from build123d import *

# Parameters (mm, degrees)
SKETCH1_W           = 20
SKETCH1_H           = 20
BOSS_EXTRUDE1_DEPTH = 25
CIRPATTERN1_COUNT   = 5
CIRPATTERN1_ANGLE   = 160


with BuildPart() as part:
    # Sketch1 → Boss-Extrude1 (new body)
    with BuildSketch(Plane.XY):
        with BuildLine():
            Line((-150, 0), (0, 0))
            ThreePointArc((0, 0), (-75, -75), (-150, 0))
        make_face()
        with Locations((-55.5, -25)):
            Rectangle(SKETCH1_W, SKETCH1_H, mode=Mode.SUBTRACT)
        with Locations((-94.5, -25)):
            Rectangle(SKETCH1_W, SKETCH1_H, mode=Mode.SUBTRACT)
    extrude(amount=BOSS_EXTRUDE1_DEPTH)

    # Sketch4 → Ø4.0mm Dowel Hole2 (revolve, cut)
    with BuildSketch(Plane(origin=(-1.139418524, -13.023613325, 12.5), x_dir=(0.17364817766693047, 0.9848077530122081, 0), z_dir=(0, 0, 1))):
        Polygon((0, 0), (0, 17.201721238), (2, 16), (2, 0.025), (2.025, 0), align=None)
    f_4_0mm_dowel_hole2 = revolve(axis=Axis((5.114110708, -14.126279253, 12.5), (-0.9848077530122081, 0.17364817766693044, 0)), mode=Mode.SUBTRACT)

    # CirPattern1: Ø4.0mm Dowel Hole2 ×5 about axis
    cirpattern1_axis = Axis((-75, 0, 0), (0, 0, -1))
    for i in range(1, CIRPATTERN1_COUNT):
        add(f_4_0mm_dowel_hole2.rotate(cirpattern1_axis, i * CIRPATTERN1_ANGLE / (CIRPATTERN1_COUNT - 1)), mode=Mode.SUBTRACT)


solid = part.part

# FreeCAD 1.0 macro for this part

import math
import FreeCAD as App
import Part
import Sketcher
from FreeCAD import Vector
Q = App.Units.Quantity


def add_polygon(sketch, points):
    """Adds a closed chain of lines whose ends are joined by coincident constraints."""
    first, n = sketch.GeometryCount, len(points)
    for a, b in zip(points, points[1:] + points[:1]):
        sketch.addGeometry(Part.LineSegment(App.Vector(*a, 0), App.Vector(*b, 0)), False)
    for i in range(n):
        sketch.addConstraint(Sketcher.Constraint("Coincident", first + i, 2, first + (i + 1) % n, 1))

doc = App.newDocument("Part")
params = doc.addObject("Spreadsheet::Sheet", "Params")
for row, (alias, value) in enumerate([
    ("sketch1_radius", "75 mm"),
    ("sketch1_width", "20 mm"),
    ("pad1_length", "25 mm"),
    ("groove_angle", "360 deg"),
], start=1):
    params.set(f"A{row}", alias)
    params.set(f"B{row}", "=" + value)
    params.setAlias(f"B{row}", alias)

body = doc.addObject("PartDesign::Body", "Body")

# Sketch on XY plane
sketch1 = body.newObject("Sketcher::SketchObject", "Sketch")
sketch1.AttachmentSupport = (doc.getObject("XY_Plane"), [""])
sketch1.MapMode = "FlatFace"
sketch1.addGeometry(Part.LineSegment(Vector(0, 0, 0), Vector(-150, 0, 0)), False)  # 0
sketch1.addGeometry(Part.ArcOfCircle(Part.Circle(Vector(-75, 0, 0), Vector(0, 0, 1), 75), math.radians(180), math.radians(360)), False)  # 1
add_polygon(sketch1, [(-66, -35), (-66, -15), (-46, -15), (-46, -35)])  # lines 2-5
add_polygon(sketch1, [(-104, -35), (-104, -15), (-84, -15), (-84, -35)])  # lines 6-9
sketch1.addConstraint([
    Sketcher.Constraint("Coincident", 0, 1, 1, 2),
    Sketcher.Constraint("Coincident", 1, 1, 0, 2),
    Sketcher.Constraint("Horizontal", 0),
    Sketcher.Constraint("Vertical", 2),
    Sketcher.Constraint("Horizontal", 3),
    Sketcher.Constraint("Vertical", 4),
    Sketcher.Constraint("Horizontal", 5),
    Sketcher.Constraint("Vertical", 6),
    Sketcher.Constraint("Horizontal", 7),
    Sketcher.Constraint("Vertical", 8),
    Sketcher.Constraint("Horizontal", 9),
    Sketcher.Constraint("Coincident", 0, 1, -1, 1),
    Sketcher.Constraint("PointOnObject", 1, 3, -1),
    Sketcher.Constraint("Horizontal", 3, 2, 6, 2),
    Sketcher.Constraint("Horizontal", 5, 2, 8, 2),
    Sketcher.Constraint("Equal", 5, 7),
    Sketcher.Constraint("Equal", 9, 2),
    Sketcher.Constraint("Radius", 1, Q("75 mm")),
    Sketcher.Constraint("DistanceX", 3, 1, 3, 2, Q("20 mm")),
    Sketcher.Constraint("DistanceY", 2, 2, -1, 1, Q("15 mm")),
    Sketcher.Constraint("DistanceX", 6, 2, 2, 2, Q("39 mm")),
    Sketcher.Constraint("DistanceX", 2, 2, -1, 1, Q("65.5 mm")),
])
sketch1.setExpression("Constraints[25]", "Params.sketch1_radius")
sketch1.setExpression("Constraints[26]", "Params.sketch1_width")
pad1 = body.newObject("PartDesign::Pad", "Pad")
pad1.Profile = sketch1
pad1.setExpression("Length", "Params.pad1_length")

# Sketch on XY plane
sketch2 = body.newObject("Sketcher::SketchObject", "Sketch001")
sketch2.AttachmentSupport = (doc.getObject("XY_Plane"), [""])
sketch2.MapMode = "FlatFace"
sketch2.AttachmentOffset = App.Placement(Vector(0, 0, 12.5), App.Rotation())
add_polygon(sketch2, [(-18.08, -10.037), (-1.139, -13.024), (-0.788, -11.029), (-0.817, -11.05), (-16.549, -8.276)])  # lines 0-4
sketch2.addGeometry(Part.LineSegment(Vector(-1.139, -13.024, 0), Vector(-18.08, -10.037, 0)), True)  # axis
sketch2.addConstraint([
    Sketcher.Constraint("Coincident", 5, 1, 0, 2),
    Sketcher.Constraint("Coincident", 5, 2, 4, 2),
    Sketcher.Constraint("Perpendicular", 0, 1),
    Sketcher.Constraint("Perpendicular", 1, 3),
    Sketcher.Constraint("Angle", 0, Q("-10 deg")),
    Sketcher.Constraint("Angle", 2, Q("-144.999999 deg")),
    Sketcher.Constraint("Angle", 4, Q("-131 deg")),
    Sketcher.Constraint("Distance", 1, Q("2.025 mm")),
    Sketcher.Constraint("Distance", 3, Q("15.975 mm")),
    Sketcher.Constraint("Distance", 0, Q("17.201721 mm")),
    Sketcher.Constraint("DistanceX", 0, 2, -1, 1, Q("1.139419 mm")),
    Sketcher.Constraint("DistanceY", 0, 2, -1, 1, Q("13.023613 mm")),
])
groove = body.newObject("PartDesign::Groove", "Groove")
groove.Profile = sketch2
groove.ReferenceAxis = (sketch2, ["Axis0"])
groove.setExpression("Angle", "Params.groove_angle")
doc.recompute()

datumline = body.newObject("PartDesign::Line", "DatumLine")
datumline.Placement = App.Placement(Vector(-75, 0, 0), App.Rotation(Vector(0, 0, 1), Vector(0, 0, -1)))
polarpattern = body.newObject("PartDesign::PolarPattern", "PolarPattern")
polarpattern.Originals = [groove]
polarpattern.Axis = (datumline, [""])
polarpattern.Angle = 160
polarpattern.Occurrences = 5
body.Tip = polarpattern

doc.recompute()
